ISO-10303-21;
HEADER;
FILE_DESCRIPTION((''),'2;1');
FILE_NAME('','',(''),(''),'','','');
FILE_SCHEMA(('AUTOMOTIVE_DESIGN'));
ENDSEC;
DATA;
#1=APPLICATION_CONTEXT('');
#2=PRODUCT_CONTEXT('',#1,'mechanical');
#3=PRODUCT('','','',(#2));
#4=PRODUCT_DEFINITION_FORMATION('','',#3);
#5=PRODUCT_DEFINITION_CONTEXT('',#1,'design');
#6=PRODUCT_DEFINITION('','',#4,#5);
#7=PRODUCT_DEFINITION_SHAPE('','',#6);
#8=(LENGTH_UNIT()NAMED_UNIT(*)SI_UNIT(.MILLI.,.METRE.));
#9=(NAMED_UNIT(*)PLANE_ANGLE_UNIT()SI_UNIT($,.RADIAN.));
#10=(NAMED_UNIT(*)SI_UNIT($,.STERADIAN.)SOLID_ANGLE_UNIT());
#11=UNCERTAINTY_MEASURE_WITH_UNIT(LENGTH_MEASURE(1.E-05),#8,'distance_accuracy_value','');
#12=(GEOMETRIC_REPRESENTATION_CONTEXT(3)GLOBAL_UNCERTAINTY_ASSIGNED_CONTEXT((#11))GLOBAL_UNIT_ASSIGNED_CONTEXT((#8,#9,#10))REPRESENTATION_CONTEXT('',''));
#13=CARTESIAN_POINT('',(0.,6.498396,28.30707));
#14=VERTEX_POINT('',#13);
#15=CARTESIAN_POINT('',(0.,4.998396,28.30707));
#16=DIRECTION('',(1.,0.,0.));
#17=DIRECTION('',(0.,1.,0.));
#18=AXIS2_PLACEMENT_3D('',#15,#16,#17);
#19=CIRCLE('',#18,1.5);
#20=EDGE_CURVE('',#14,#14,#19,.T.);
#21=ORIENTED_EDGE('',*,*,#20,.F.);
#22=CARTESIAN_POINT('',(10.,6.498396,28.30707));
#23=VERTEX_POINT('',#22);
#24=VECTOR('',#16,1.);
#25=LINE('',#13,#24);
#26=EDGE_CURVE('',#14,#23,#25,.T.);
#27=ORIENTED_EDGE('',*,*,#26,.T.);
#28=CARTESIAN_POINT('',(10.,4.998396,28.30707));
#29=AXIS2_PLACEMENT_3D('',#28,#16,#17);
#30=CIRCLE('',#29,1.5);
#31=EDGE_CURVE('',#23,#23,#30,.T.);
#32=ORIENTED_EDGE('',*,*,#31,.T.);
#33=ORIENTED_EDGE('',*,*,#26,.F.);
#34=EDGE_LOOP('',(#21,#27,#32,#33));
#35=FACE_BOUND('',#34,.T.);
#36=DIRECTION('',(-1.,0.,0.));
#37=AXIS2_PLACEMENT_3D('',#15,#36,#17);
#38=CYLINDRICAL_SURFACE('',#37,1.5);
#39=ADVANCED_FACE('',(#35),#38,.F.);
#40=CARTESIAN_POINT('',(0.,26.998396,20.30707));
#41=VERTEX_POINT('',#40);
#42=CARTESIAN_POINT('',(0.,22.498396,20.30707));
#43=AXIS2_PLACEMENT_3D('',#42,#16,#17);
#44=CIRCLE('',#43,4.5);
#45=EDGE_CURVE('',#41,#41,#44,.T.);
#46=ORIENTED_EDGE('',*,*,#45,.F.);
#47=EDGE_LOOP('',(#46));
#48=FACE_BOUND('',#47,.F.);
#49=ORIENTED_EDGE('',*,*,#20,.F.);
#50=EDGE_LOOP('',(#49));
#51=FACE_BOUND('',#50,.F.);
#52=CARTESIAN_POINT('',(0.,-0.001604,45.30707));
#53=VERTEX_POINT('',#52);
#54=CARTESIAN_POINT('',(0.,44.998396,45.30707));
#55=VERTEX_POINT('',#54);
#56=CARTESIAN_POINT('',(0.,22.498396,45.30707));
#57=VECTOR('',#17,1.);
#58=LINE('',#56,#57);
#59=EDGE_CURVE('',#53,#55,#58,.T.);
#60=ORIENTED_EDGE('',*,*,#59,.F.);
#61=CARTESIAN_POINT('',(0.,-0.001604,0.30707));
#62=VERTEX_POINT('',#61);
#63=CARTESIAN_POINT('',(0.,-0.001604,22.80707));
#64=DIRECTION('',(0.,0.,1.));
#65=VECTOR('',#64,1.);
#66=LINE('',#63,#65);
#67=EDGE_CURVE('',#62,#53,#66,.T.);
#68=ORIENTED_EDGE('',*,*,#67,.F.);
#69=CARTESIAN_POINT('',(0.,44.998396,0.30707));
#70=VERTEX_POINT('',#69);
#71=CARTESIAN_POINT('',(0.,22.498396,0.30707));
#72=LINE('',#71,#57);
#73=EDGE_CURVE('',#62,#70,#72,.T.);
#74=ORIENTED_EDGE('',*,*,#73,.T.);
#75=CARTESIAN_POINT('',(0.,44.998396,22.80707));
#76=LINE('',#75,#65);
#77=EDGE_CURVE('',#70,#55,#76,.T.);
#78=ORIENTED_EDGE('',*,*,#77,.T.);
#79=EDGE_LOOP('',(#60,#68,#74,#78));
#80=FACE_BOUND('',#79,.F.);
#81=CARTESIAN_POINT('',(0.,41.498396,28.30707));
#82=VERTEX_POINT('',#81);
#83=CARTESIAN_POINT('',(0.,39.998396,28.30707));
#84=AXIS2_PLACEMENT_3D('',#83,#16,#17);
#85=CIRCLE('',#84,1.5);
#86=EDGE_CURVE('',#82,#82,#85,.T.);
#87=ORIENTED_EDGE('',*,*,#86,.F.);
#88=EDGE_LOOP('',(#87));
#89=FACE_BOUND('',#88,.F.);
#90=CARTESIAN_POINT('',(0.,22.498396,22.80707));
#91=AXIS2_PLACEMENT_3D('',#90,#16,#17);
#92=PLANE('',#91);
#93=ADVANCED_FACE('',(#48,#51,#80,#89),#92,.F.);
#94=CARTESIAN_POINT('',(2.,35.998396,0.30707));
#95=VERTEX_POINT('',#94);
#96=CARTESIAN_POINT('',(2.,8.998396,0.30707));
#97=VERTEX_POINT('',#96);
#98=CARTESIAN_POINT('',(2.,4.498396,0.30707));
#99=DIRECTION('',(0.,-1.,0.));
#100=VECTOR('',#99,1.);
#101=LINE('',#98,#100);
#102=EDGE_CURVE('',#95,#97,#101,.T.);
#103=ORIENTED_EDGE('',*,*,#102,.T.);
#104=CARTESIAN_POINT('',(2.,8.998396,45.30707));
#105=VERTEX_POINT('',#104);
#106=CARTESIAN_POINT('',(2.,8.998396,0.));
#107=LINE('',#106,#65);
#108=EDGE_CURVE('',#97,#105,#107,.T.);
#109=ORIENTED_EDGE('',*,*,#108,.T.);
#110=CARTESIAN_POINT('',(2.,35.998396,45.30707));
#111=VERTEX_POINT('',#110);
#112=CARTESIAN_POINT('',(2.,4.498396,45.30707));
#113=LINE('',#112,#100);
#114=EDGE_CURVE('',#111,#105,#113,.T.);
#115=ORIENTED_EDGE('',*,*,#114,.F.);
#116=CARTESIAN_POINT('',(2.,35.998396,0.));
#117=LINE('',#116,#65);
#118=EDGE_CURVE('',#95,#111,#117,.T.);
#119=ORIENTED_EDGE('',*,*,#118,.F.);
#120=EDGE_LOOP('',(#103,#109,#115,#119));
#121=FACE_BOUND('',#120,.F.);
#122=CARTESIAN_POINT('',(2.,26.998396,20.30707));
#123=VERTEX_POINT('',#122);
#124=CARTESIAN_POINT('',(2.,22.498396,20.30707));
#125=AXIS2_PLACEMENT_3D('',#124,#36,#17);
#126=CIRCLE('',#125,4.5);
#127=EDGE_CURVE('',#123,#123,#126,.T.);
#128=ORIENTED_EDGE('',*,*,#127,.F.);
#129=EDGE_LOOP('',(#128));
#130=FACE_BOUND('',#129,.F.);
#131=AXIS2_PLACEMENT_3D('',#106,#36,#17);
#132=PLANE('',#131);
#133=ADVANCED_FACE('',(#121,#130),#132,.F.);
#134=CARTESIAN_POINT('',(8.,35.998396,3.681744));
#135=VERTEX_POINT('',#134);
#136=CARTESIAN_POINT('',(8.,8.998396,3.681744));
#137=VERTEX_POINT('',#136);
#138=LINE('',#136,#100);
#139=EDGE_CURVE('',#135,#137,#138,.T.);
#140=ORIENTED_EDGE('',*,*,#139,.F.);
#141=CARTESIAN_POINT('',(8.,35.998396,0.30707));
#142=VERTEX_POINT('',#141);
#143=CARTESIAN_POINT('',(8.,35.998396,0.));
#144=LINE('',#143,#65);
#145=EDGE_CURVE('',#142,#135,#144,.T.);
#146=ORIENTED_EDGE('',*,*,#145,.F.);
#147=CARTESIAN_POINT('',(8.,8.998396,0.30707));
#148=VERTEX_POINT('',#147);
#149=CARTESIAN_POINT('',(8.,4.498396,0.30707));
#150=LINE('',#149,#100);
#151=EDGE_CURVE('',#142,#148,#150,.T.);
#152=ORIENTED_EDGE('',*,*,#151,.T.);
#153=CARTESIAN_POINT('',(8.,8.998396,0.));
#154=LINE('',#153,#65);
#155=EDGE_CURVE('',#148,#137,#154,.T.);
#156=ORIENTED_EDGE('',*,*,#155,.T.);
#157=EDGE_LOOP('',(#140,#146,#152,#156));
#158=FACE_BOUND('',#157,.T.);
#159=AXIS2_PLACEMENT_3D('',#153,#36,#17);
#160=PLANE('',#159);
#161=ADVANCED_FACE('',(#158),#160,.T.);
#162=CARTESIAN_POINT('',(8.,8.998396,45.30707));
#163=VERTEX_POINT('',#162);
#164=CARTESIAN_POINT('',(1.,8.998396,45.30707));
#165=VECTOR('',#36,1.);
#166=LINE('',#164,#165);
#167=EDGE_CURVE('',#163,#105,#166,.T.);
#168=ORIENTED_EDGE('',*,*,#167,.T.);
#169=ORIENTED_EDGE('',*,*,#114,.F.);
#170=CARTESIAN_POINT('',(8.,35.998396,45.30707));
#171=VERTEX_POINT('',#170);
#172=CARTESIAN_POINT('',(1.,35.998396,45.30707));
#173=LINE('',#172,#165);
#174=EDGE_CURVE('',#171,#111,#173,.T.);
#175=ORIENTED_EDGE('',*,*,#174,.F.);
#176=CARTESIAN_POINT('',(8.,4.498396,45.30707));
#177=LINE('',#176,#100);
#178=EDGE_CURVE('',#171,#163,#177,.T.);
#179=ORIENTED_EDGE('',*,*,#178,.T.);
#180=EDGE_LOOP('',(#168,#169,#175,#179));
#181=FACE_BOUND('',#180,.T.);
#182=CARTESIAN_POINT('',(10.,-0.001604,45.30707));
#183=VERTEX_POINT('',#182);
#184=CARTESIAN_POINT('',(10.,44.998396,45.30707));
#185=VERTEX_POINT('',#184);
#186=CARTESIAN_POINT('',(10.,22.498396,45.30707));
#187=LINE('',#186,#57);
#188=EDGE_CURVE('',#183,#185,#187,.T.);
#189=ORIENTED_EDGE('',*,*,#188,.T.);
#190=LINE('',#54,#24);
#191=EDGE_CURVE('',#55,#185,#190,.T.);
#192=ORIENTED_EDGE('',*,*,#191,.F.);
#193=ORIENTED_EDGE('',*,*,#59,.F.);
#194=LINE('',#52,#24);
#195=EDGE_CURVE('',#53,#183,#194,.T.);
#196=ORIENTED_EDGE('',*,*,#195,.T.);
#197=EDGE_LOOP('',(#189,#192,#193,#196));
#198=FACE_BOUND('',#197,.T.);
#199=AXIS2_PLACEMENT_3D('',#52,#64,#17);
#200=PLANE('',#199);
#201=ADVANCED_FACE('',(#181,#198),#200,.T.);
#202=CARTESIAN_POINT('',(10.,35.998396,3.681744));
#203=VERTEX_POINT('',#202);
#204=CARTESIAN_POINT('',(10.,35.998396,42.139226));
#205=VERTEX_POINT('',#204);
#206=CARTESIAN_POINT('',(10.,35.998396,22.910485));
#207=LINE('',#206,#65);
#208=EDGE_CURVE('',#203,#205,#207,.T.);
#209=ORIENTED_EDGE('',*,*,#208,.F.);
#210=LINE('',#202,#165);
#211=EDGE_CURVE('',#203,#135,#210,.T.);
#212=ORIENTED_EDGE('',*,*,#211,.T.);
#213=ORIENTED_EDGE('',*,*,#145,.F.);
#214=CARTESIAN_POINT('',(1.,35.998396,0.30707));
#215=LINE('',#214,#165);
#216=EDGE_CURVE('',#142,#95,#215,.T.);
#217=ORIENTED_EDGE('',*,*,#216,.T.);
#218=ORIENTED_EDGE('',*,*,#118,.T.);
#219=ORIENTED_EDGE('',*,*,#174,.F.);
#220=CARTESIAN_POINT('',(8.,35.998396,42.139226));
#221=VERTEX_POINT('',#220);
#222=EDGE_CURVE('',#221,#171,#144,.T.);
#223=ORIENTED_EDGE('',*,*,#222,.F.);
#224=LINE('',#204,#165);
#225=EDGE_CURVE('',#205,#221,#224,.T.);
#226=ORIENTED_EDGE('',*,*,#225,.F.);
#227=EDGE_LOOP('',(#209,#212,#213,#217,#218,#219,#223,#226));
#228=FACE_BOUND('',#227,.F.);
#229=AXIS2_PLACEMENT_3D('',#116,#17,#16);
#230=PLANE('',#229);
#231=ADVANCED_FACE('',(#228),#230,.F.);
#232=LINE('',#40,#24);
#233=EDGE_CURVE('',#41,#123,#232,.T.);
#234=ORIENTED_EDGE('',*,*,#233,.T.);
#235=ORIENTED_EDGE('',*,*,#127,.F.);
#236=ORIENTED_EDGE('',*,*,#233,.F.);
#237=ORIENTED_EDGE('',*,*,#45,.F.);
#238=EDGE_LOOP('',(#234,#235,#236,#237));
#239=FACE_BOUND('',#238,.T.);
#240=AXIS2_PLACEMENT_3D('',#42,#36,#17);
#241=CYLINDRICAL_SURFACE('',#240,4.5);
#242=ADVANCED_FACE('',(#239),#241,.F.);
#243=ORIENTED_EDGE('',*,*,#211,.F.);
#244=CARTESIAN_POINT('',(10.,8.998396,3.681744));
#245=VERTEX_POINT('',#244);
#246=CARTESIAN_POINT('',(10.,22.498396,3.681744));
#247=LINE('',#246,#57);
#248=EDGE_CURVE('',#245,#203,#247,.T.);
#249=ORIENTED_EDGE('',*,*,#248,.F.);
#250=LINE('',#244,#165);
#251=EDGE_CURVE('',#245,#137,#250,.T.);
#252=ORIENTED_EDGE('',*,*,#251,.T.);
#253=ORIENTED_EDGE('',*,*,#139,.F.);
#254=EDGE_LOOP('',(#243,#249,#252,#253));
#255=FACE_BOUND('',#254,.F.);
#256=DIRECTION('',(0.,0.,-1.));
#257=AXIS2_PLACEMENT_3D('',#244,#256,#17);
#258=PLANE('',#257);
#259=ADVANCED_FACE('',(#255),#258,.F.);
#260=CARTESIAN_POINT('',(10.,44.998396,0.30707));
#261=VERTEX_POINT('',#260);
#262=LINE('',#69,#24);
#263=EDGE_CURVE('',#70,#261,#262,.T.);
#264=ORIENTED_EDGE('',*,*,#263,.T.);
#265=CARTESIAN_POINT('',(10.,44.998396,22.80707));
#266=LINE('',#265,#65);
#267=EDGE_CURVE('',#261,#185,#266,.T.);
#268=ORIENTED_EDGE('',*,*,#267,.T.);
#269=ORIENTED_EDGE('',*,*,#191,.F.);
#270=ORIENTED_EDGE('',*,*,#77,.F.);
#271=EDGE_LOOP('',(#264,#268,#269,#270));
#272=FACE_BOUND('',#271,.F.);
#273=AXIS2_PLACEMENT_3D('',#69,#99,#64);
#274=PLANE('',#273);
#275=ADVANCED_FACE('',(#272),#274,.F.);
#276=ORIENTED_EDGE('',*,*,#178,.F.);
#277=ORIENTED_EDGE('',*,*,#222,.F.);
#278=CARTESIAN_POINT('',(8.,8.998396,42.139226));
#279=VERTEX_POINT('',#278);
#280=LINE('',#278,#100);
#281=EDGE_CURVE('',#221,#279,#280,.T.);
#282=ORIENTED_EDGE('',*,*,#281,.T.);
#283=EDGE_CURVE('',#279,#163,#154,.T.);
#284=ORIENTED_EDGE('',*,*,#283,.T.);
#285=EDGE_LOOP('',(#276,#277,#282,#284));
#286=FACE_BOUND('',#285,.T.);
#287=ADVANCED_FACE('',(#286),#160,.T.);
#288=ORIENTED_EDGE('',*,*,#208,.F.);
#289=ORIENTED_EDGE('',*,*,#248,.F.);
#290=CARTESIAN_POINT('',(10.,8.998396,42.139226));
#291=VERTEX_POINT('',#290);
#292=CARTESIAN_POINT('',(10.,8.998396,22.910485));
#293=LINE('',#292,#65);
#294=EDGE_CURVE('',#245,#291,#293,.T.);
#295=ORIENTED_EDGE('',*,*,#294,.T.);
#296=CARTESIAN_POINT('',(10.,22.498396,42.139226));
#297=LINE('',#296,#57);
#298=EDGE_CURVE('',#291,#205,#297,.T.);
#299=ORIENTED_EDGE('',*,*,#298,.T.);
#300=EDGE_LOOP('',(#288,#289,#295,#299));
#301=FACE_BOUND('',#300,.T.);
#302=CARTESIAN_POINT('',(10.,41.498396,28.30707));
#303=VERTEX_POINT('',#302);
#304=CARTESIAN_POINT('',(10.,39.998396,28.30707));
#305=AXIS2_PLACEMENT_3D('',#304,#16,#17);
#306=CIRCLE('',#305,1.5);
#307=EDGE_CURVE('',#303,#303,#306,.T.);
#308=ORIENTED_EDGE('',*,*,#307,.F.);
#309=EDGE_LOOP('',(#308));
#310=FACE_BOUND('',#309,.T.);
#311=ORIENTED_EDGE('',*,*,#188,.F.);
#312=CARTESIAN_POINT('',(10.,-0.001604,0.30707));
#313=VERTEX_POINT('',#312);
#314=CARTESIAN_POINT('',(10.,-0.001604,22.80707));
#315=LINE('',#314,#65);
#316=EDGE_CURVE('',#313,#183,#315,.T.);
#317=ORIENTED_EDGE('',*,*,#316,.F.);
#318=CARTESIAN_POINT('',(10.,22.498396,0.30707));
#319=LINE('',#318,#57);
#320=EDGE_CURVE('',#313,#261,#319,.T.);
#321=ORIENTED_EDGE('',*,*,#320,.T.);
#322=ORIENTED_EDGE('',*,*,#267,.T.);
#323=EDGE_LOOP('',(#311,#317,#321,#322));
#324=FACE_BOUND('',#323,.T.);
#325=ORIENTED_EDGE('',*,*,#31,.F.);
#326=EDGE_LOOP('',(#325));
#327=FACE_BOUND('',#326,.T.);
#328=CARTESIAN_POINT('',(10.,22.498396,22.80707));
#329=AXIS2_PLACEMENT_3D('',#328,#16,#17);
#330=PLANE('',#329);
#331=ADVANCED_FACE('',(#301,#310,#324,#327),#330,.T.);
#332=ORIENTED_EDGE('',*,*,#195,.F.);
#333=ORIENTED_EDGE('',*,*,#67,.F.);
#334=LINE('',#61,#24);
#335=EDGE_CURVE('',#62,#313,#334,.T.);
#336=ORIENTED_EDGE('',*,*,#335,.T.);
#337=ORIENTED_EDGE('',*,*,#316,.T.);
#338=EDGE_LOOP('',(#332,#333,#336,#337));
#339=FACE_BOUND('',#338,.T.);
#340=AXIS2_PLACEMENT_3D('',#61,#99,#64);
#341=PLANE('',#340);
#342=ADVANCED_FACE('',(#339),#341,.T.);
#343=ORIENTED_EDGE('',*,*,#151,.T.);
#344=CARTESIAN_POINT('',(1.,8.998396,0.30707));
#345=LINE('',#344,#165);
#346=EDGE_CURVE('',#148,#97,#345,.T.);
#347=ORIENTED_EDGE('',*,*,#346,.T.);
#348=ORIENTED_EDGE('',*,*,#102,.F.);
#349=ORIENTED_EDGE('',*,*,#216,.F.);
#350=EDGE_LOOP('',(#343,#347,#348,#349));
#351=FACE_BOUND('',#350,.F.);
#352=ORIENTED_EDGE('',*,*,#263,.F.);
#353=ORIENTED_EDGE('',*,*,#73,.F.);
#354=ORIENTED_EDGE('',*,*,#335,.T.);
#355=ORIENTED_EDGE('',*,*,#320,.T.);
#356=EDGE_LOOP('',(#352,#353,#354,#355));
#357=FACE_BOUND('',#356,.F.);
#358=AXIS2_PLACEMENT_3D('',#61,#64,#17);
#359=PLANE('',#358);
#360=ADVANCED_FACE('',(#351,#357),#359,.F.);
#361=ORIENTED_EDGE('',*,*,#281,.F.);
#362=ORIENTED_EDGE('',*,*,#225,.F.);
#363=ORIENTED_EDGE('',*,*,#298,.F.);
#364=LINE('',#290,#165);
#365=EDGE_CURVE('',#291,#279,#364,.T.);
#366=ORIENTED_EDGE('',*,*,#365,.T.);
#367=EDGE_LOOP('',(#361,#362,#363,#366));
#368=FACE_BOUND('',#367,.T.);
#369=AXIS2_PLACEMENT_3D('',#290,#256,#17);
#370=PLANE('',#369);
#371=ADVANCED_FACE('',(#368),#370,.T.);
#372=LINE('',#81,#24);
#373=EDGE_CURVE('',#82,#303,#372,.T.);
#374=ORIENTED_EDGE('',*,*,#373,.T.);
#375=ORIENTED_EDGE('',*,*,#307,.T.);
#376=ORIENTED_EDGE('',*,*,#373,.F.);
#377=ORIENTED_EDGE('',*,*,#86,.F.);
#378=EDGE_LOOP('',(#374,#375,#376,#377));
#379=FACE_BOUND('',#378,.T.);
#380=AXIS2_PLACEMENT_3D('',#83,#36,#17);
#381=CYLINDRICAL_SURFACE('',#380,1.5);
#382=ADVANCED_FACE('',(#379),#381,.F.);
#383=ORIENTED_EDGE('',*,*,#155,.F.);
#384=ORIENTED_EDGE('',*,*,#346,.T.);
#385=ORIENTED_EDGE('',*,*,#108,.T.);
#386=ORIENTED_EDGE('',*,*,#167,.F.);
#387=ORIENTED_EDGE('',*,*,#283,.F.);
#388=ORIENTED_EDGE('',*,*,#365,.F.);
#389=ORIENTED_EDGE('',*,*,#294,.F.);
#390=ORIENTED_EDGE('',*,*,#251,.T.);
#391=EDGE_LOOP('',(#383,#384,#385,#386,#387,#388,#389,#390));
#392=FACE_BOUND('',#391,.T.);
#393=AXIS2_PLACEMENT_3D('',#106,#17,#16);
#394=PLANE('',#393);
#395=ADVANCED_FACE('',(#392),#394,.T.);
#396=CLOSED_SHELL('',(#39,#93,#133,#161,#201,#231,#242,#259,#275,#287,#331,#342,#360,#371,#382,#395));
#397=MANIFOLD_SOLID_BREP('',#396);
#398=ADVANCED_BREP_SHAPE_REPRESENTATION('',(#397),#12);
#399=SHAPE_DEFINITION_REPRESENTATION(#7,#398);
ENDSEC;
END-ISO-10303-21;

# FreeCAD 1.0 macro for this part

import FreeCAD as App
import Part
import Sketcher
Q = App.Units.Quantity


def add_polygon(sketch, points):
    """Adds a closed chain of lines whose ends are joined by coincident constraints."""
    first, n = sketch.GeometryCount, len(points)
    for a, b in zip(points, points[1:] + points[:1]):
        sketch.addGeometry(Part.LineSegment(App.Vector(*a, 0), App.Vector(*b, 0)), False)
    for i in range(n):
        sketch.addConstraint(Sketcher.Constraint("Coincident", first + i, 2, first + (i + 1) % n, 1))

doc = App.newDocument("Part")
params = doc.addObject("Spreadsheet::Sheet", "Params")
for row, (alias, value) in enumerate([
    ("sketch1_width", "45 mm"),
    ("pad1_length", "10 mm"),
    ("sketch2_width", "6 mm"),
    ("sketch2_height", "27 mm"),
    ("pocket1_length", "4510 mm"),
    ("sketch3_diameter", "9 mm"),
    ("sketch3_diameter2", "3 mm"),
    ("pocket2_length", "10 mm"),
    ("sketch4_width", "27 mm"),
    ("pocket3_length", "5 mm"),
], start=1):
    params.set(f"A{row}", alias)
    params.set(f"B{row}", "=" + value)
    params.setAlias(f"B{row}", alias)

body = doc.addObject("PartDesign::Body", "Body")

# Sketch on YZ plane
sketch1 = body.newObject("Sketcher::SketchObject", "Sketch")
sketch1.AttachmentSupport = (doc.getObject("YZ_Plane"), [""])
sketch1.MapMode = "FlatFace"
add_polygon(sketch1, [(0, 45), (0, 0), (45, 0), (45, 45)])  # lines 0-3
sketch1.addConstraint(Sketcher.Constraint("Vertical", 0))
sketch1.addConstraint(Sketcher.Constraint("Horizontal", 1))
sketch1.addConstraint(Sketcher.Constraint("Vertical", 2))
sketch1.addConstraint(Sketcher.Constraint("Horizontal", 3))
sketch1.addConstraint(Sketcher.Constraint("Equal", 3, 0))
sketch1.addConstraint(Sketcher.Constraint("DistanceX", 1, 1, 1, 2, Q("45 mm")))
sketch1.addConstraint(Sketcher.Constraint("DistanceY", -1, 1, 0, 2, Q("0.30707 mm")))
sketch1.addConstraint(Sketcher.Constraint("DistanceX", 0, 2, -1, 1, Q("0.001604 mm")))
sketch1.setExpression("Constraints[9]", "Params.sketch1_width")
pad1 = body.newObject("PartDesign::Pad", "Pad")
pad1.Profile = sketch1
pad1.setExpression("Length", "Params.pad1_length")

# Sketch on XY plane
sketch2 = body.newObject("Sketcher::SketchObject", "Sketch001")
sketch2.AttachmentSupport = (doc.getObject("XY_Plane"), [""])
sketch2.MapMode = "FlatFace"
add_polygon(sketch2, [(2, 36), (2, 9), (8, 9), (8, 36)])  # lines 0-3
sketch2.addConstraint(Sketcher.Constraint("Vertical", 0))
sketch2.addConstraint(Sketcher.Constraint("Horizontal", 1))
sketch2.addConstraint(Sketcher.Constraint("Vertical", 2))
sketch2.addConstraint(Sketcher.Constraint("Horizontal", 3))
sketch2.addConstraint(Sketcher.Constraint("DistanceX", 1, 1, 1, 2, Q("6 mm")))
sketch2.addConstraint(Sketcher.Constraint("DistanceY", 0, 2, 0, 1, Q("27 mm")))
sketch2.addConstraint(Sketcher.Constraint("DistanceX", -1, 1, 0, 2, Q("2 mm")))
sketch2.addConstraint(Sketcher.Constraint("DistanceY", -1, 1, 0, 2, Q("8.998396 mm")))
sketch2.setExpression("Constraints[8]", "Params.sketch2_width")
sketch2.setExpression("Constraints[9]", "Params.sketch2_height")
pocket1 = body.newObject("PartDesign::Pocket", "Pocket")
pocket1.Profile = sketch2
pocket1.setExpression("Length", "Params.pocket1_length")
pocket1.Reversed = True

# Sketch on YZ plane
sketch3 = body.newObject("Sketcher::SketchObject", "Sketch002")
sketch3.AttachmentSupport = (doc.getObject("YZ_Plane"), [""])
sketch3.MapMode = "FlatFace"
sketch3.addGeometry(Part.Circle(App.Vector(22.5, 20.3, 0), App.Vector(0, 0, 1), 4.5), False)
sketch3.addGeometry(Part.Circle(App.Vector(5, 28.3, 0), App.Vector(0, 0, 1), 1.5), False)
sketch3.addGeometry(Part.Circle(App.Vector(40, 28.3, 0), App.Vector(0, 0, 1), 1.5), False)
sketch3.addConstraint(Sketcher.Constraint("Equal", 1, 2))
sketch3.addConstraint(Sketcher.Constraint("Horizontal", 1, 3, 2, 3))
sketch3.addConstraint(Sketcher.Constraint("Diameter", 0, Q("9 mm")))
sketch3.addConstraint(Sketcher.Constraint("Diameter", 1, Q("3 mm")))
sketch3.addConstraint(Sketcher.Constraint("DistanceY", 0, 3, 1, 3, Q("8 mm")))
sketch3.addConstraint(Sketcher.Constraint("DistanceX", 1, 3, 2, 3, Q("35 mm")))
sketch3.addConstraint(Sketcher.Constraint("DistanceX", 1, 3, 0, 3, Q("17.5 mm")))
sketch3.addConstraint(Sketcher.Constraint("DistanceY", -1, 1, 0, 3, Q("20.30707 mm")))
sketch3.addConstraint(Sketcher.Constraint("DistanceX", -1, 1, 0, 3, Q("22.498396 mm")))
sketch3.setExpression("Constraints[2]", "Params.sketch3_diameter")
sketch3.setExpression("Constraints[3]", "Params.sketch3_diameter2")
pocket2 = body.newObject("PartDesign::Pocket", "Pocket001")
pocket2.Profile = sketch3
pocket2.setExpression("Length", "Params.pocket2_length")
pocket2.Reversed = True

# Sketch on YZ plane
sketch4 = body.newObject("Sketcher::SketchObject", "Sketch003")
sketch4.AttachmentSupport = (doc.getObject("YZ_Plane"), [""])
sketch4.MapMode = "FlatFace"
sketch4.AttachmentOffset = App.Placement(App.Vector(0, 0, 10), App.Rotation())
add_polygon(sketch4, [(9, 42), (9, 4), (36, 4), (36, 42)])  # lines 0-3
sketch4.addConstraint(Sketcher.Constraint("Vertical", 0))
sketch4.addConstraint(Sketcher.Constraint("Horizontal", 1))
sketch4.addConstraint(Sketcher.Constraint("Vertical", 2))
sketch4.addConstraint(Sketcher.Constraint("Horizontal", 3))
sketch4.addConstraint(Sketcher.Constraint("DistanceX", 1, 1, 1, 2, Q("27 mm")))
sketch4.addConstraint(Sketcher.Constraint("DistanceY", 0, 2, 0, 1, Q("38.457482 mm")))
sketch4.addConstraint(Sketcher.Constraint("DistanceX", -1, 1, 0, 2, Q("8.998396 mm")))
sketch4.addConstraint(Sketcher.Constraint("DistanceY", -1, 1, 0, 2, Q("3.681744 mm")))
sketch4.setExpression("Constraints[8]", "Params.sketch4_width")
pocket3 = body.newObject("PartDesign::Pocket", "Pocket002")
pocket3.Profile = sketch4
pocket3.setExpression("Length", "Params.pocket3_length")

doc.recompute()
